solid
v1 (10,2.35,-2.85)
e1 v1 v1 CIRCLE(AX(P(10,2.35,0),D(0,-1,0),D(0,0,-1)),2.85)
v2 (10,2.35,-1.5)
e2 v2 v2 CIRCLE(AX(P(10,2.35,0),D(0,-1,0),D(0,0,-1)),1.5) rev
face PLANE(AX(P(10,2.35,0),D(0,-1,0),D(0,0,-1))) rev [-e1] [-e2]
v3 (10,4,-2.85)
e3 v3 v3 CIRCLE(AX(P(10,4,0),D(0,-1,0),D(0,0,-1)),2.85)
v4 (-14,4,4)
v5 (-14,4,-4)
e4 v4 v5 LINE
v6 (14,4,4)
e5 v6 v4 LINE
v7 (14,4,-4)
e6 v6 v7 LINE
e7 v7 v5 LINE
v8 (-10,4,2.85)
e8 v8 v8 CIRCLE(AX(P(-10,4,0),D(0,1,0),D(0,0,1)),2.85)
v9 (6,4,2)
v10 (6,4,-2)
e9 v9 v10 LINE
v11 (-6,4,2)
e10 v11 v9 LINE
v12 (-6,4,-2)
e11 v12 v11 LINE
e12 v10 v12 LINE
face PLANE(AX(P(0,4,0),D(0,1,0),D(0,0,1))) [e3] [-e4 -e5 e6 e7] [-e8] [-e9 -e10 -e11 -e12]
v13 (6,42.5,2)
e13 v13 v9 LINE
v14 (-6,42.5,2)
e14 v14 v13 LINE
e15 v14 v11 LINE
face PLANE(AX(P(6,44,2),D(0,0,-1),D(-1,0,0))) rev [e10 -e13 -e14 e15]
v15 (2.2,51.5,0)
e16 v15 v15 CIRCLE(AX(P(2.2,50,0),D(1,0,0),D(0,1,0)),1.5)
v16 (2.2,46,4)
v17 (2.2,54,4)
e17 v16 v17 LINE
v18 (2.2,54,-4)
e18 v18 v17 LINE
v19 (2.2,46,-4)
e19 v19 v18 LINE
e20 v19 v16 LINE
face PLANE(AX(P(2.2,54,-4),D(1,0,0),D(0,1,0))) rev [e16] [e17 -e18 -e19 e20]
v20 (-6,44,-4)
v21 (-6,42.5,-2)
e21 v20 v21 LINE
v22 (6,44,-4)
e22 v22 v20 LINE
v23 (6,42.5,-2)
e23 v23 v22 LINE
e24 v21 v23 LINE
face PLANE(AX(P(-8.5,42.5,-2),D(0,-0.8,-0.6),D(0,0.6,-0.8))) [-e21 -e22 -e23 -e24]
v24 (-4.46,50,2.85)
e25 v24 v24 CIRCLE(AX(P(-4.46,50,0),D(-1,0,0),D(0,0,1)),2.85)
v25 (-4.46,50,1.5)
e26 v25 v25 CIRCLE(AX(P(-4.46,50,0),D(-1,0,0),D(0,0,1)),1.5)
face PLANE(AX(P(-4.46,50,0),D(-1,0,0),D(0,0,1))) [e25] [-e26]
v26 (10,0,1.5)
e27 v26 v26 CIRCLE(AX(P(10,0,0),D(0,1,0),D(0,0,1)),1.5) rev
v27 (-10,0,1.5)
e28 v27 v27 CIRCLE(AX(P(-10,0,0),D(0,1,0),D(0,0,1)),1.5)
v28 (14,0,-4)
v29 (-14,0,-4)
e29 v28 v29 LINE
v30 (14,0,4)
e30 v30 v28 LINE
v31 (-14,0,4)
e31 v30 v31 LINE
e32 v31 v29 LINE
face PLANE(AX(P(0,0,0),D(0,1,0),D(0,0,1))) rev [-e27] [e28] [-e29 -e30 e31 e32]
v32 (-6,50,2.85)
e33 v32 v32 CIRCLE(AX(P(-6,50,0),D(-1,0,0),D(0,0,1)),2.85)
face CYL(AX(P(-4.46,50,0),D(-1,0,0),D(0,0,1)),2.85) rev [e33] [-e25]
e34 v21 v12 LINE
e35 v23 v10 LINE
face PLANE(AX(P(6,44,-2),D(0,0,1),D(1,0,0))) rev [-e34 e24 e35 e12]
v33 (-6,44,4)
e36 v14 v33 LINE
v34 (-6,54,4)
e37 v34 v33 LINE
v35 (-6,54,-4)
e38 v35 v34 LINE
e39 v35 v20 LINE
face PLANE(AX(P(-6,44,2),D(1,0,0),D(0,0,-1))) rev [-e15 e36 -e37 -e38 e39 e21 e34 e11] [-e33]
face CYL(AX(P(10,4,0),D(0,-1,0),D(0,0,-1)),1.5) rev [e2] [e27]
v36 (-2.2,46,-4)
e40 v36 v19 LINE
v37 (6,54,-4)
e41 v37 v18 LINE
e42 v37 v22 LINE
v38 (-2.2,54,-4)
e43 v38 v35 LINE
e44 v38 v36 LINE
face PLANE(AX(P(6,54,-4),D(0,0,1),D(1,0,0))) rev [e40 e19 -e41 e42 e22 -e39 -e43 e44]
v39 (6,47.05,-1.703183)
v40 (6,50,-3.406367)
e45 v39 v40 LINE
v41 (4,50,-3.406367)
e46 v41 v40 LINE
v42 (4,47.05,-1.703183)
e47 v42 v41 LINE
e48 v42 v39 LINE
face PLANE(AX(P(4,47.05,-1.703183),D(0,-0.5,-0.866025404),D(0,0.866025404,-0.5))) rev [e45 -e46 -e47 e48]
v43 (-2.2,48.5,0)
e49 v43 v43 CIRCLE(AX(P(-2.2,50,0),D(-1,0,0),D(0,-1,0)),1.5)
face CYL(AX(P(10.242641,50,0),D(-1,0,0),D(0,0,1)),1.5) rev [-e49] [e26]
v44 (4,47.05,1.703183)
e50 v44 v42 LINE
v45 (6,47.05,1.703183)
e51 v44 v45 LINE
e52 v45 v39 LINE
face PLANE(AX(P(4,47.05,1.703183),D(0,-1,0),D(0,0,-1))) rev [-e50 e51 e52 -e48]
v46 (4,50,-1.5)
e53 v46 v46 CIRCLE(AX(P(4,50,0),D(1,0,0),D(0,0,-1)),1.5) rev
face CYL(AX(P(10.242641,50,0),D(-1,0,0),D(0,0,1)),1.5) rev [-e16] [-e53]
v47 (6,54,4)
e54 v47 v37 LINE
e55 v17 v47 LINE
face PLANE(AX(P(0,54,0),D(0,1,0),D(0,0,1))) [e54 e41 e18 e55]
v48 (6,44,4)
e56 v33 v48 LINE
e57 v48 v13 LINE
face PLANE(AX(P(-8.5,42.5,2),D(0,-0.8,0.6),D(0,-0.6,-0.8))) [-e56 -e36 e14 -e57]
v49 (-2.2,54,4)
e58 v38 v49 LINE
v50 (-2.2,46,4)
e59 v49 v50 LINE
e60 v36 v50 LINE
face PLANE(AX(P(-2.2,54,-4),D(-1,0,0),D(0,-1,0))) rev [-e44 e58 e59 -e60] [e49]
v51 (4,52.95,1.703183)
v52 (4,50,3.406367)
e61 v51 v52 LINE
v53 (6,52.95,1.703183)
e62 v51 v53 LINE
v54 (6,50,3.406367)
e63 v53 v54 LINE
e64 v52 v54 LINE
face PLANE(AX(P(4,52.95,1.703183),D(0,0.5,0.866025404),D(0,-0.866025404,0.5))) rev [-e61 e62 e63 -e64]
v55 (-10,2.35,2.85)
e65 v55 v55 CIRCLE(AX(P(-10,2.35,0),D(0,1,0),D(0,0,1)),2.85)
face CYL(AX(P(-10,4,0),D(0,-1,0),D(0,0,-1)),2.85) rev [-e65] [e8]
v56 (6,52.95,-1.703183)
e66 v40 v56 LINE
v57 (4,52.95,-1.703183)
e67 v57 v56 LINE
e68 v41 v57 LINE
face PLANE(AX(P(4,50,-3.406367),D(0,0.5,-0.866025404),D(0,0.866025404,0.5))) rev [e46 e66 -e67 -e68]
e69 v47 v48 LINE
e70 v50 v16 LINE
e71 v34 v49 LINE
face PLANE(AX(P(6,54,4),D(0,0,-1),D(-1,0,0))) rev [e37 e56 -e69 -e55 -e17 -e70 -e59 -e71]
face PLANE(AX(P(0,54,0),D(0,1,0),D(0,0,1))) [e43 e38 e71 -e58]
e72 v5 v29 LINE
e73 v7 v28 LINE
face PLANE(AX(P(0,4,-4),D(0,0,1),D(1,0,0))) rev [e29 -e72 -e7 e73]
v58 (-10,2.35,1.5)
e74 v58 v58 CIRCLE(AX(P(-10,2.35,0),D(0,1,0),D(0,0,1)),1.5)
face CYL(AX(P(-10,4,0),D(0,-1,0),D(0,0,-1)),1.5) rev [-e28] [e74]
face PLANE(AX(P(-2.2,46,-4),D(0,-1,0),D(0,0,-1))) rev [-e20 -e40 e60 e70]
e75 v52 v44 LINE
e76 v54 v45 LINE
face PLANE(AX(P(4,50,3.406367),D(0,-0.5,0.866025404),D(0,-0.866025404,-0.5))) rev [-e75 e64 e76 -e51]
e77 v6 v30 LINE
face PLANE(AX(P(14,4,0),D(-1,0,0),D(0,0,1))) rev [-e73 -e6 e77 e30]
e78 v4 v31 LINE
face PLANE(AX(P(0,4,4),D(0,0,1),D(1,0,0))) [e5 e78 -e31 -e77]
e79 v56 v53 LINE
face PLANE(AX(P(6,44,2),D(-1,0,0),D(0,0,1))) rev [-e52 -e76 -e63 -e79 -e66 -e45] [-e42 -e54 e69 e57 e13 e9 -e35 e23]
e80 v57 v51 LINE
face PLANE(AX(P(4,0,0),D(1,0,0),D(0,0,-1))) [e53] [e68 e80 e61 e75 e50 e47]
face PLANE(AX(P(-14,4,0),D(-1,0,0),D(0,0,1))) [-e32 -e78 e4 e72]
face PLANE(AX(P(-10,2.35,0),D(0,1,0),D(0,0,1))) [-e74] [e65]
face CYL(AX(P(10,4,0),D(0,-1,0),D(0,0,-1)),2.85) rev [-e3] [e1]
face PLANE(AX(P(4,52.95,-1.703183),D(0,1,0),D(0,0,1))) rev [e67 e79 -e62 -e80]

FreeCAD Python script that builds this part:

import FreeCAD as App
import Part
import Sketcher

V = App.Vector
Q = App.Units.Quantity


def add_polygon(sketch, points):
    """Adds a closed chain of lines whose ends are joined by coincident constraints."""
    first, n = sketch.GeometryCount, len(points)
    for a, b in zip(points, points[1:] + points[:1]):
        sketch.addGeometry(Part.LineSegment(App.Vector(*a, 0), App.Vector(*b, 0)), False)
    for i in range(n):
        sketch.addConstraint(Sketcher.Constraint("Coincident", first + i, 2, first + (i + 1) % n, 1))

doc = App.newDocument("Part")
body = doc.addObject("PartDesign::Body", "Body")

sketch1 = body.newObject("Sketcher::SketchObject", "Sketch")
sketch1.AttachmentSupport = (doc.getObject("XZ_Plane"), [""])
sketch1.MapMode = "FlatFace"
add_polygon(sketch1, [(-14, -4), (-14, 4), (14, 4), (14, -4)])
sketch1.addGeometry(Part.Circle(V(-10, 0, 0), V(0, 0, 1), 1.5), False)
sketch1.addGeometry(Part.Circle(V(10, 0, 0), V(0, 0, 1), 1.5), False)
sketch1.addConstraint(Sketcher.Constraint("Vertical", 0))
sketch1.addConstraint(Sketcher.Constraint("Horizontal", 1))
sketch1.addConstraint(Sketcher.Constraint("Vertical", 2))
sketch1.addConstraint(Sketcher.Constraint("Horizontal", 3))
sketch1.addConstraint(Sketcher.Constraint("Equal", 4, 5))
sketch1.addConstraint(Sketcher.Constraint("Symmetric", 4, 3, 5, 3, -1, 1))
sketch1.addConstraint(Sketcher.Constraint("Symmetric", 0, 2, 2, 2, -1, 1))
sketch1.addConstraint(Sketcher.Constraint("PointOnObject", 4, 3, -1))
sketch1.addConstraint(Sketcher.Constraint("Diameter", 4, Q("3 mm")))
sketch1.addConstraint(Sketcher.Constraint("DistanceX", 1, 1, 1, 2, Q("28 mm")))
sketch1.addConstraint(Sketcher.Constraint("DistanceY", 0, 1, 0, 2, Q("8 mm")))
sketch1.addConstraint(Sketcher.Constraint("DistanceX", 4, 3, -1, 1, Q("10 mm")))
pad1 = body.newObject("PartDesign::Pad", "Pad")
pad1.Profile = sketch1
pad1.Length = 4
pad1.Reversed = True

sketch2 = body.newObject("Sketcher::SketchObject", "Sketch001")
sketch2.AttachmentSupport = (doc.getObject("XZ_Plane"), [""])
sketch2.MapMode = "FlatFace"
sketch2.AttachmentOffset = App.Placement(V(0, 0, -2.35), App.Rotation())
sketch2.addGeometry(Part.Circle(V(-10, 0, 0), V(0, 0, 1), 2.9), False)
sketch2.addGeometry(Part.Circle(V(10, 0, 0), V(0, 0, 1), 2.9), False)
sketch2.addConstraint(Sketcher.Constraint("Equal", 0, 1))
sketch2.addConstraint(Sketcher.Constraint("Symmetric", 0, 3, 1, 3, -1, 1))
sketch2.addConstraint(Sketcher.Constraint("PointOnObject", 0, 3, -1))
sketch2.addConstraint(Sketcher.Constraint("Diameter", 0, Q("5.7 mm")))
sketch2.addConstraint(Sketcher.Constraint("DistanceX", 0, 3, -1, 1, Q("10 mm")))
pocket1 = body.newObject("PartDesign::Pocket", "Pocket")
pocket1.Profile = sketch2
pocket1.Type = "ThroughAll"

sketch3 = body.newObject("Sketcher::SketchObject", "Sketch002")
sketch3.AttachmentSupport = (doc.getObject("XZ_Plane"), [""])
sketch3.MapMode = "FlatFace"
sketch3.AttachmentOffset = App.Placement(V(0, 0, -4), App.Rotation())
add_polygon(sketch3, [(-6, -2), (-6, 2), (6, 2), (6, -2)])
sketch3.addConstraint(Sketcher.Constraint("Vertical", 0))
sketch3.addConstraint(Sketcher.Constraint("Horizontal", 1))
sketch3.addConstraint(Sketcher.Constraint("Vertical", 2))
sketch3.addConstraint(Sketcher.Constraint("Horizontal", 3))
sketch3.addConstraint(Sketcher.Constraint("Symmetric", 0, 2, 2, 2, -1, 1))
sketch3.addConstraint(Sketcher.Constraint("DistanceX", 1, 1, 1, 2, Q("12 mm")))
sketch3.addConstraint(Sketcher.Constraint("DistanceY", 0, 1, 0, 2, Q("4 mm")))
pad2 = body.newObject("PartDesign::Pad", "Pad001")
pad2.Profile = sketch3
pad2.Length = 40
pad2.Reversed = True

sketch4 = body.newObject("Sketcher::SketchObject", "Sketch003")
sketch4.AttachmentSupport = (doc.getObject("XZ_Plane"), [""])
sketch4.MapMode = "FlatFace"
sketch4.AttachmentOffset = App.Placement(V(0, 0, -44), App.Rotation())
add_polygon(sketch4, [(-6, -4), (-6, 4), (6, 4), (6, -4)])
sketch4.addConstraint(Sketcher.Constraint("Vertical", 0))
sketch4.addConstraint(Sketcher.Constraint("Horizontal", 1))
sketch4.addConstraint(Sketcher.Constraint("Vertical", 2))
sketch4.addConstraint(Sketcher.Constraint("Horizontal", 3))
sketch4.addConstraint(Sketcher.Constraint("Symmetric", 0, 2, 2, 2, -1, 1))
sketch4.addConstraint(Sketcher.Constraint("DistanceX", 1, 1, 1, 2, Q("12 mm")))
sketch4.addConstraint(Sketcher.Constraint("DistanceY", 0, 1, 0, 2, Q("8 mm")))
pad3 = body.newObject("PartDesign::Pad", "Pad002")
pad3.Profile = sketch4
pad3.Length = 10
pad3.Reversed = True

sketch5 = body.newObject("Sketcher::SketchObject", "Sketch004")
sketch5.AttachmentSupport = (doc.getObject("XY_Plane"), [""])
sketch5.MapMode = "FlatFace"
sketch5.AttachmentOffset = App.Placement(V(0, 0, 4), App.Rotation())
add_polygon(sketch5, [(-2.2, 54), (-2.2, 46), (2.2, 46), (2.2, 54)])
sketch5.addConstraint(Sketcher.Constraint("Vertical", 0))
sketch5.addConstraint(Sketcher.Constraint("Horizontal", 1))
sketch5.addConstraint(Sketcher.Constraint("Vertical", 2))
sketch5.addConstraint(Sketcher.Constraint("Horizontal", 3))
sketch5.addConstraint(Sketcher.Constraint("DistanceY", 0, 2, 0, 1, Q("8 mm")))
sketch5.addConstraint(Sketcher.Constraint("DistanceX", 1, 1, 1, 2, Q("4.4 mm")))
sketch5.addConstraint(Sketcher.Constraint("DistanceY", -1, 1, 0, 2, Q("46 mm")))
sketch5.addConstraint(Sketcher.Constraint("DistanceX", 0, 2, -1, 1, Q("2.2 mm")))
pocket2 = body.newObject("PartDesign::Pocket", "Pocket001")
pocket2.Profile = sketch5
pocket2.Type = "ThroughAll"

sketch6 = body.newObject("Sketcher::SketchObject", "Sketch005")
sketch6.AttachmentSupport = (doc.getObject("YZ_Plane"), [""])
sketch6.MapMode = "FlatFace"
sketch6.AttachmentOffset = App.Placement(V(0, 0, 6), App.Rotation())
sketch6.addGeometry(Part.Circle(V(50, 0, 0), V(0, 0, 1), 1.5), False)
sketch6.addConstraint(Sketcher.Constraint("PointOnObject", 0, 3, -1))
sketch6.addConstraint(Sketcher.Constraint("Diameter", 0, Q("3 mm")))
sketch6.addConstraint(Sketcher.Constraint("DistanceX", -1, 1, 0, 3, Q("50 mm")))
pocket3 = body.newObject("PartDesign::Pocket", "Pocket002")
pocket3.Profile = sketch6
pocket3.Length = 12

sketch7 = body.newObject("Sketcher::SketchObject", "Sketch006")
sketch7.AttachmentSupport = (doc.getObject("YZ_Plane"), [""])
sketch7.MapMode = "FlatFace"
sketch7.AttachmentOffset = App.Placement(V(0, 0, -4.46), App.Rotation())
sketch7.addGeometry(Part.Circle(V(50, 0, 0), V(0, 0, 1), 2.9), False)
sketch7.addGeometry(Part.Circle(V(50, 0, 0), V(0, 0, 1), 1.5), False)
sketch7.addConstraint(Sketcher.Constraint("Coincident", 1, 3, 0, 3))
sketch7.addConstraint(Sketcher.Constraint("PointOnObject", 0, 3, -1))
sketch7.addConstraint(Sketcher.Constraint("Diameter", 1, Q("3 mm")))
sketch7.addConstraint(Sketcher.Constraint("Diameter", 0, Q("5.7 mm")))
sketch7.addConstraint(Sketcher.Constraint("DistanceX", -1, 1, 0, 3, Q("50 mm")))
pocket4 = body.newObject("PartDesign::Pocket", "Pocket003")
pocket4.Profile = sketch7
pocket4.Length = 1.54

sketch8 = body.newObject("Sketcher::SketchObject", "Sketch007")
sketch8.AttachmentSupport = (doc.getObject("YZ_Plane"), [""])
sketch8.MapMode = "FlatFace"
sketch8.AttachmentOffset = App.Placement(V(0, 0, 6), App.Rotation())
add_polygon(sketch8, [(50, 3.4), (47, 1.7), (47, -1.7), (50, -3.4), (53, -1.7), (53, 1.7)])
sketch8.addConstraint(Sketcher.Constraint("Vertical", 1))
sketch8.addConstraint(Sketcher.Constraint("Vertical", 4))
sketch8.addConstraint(Sketcher.Constraint("Symmetric", 2, 2, 5, 2, -1))
sketch8.addConstraint(Sketcher.Constraint("Parallel", 0, 3))
sketch8.addConstraint(Sketcher.Constraint("Parallel", 2, 5))
sketch8.addConstraint(Sketcher.Constraint("Horizontal", 1, 2, 3, 2))
sketch8.addConstraint(Sketcher.Constraint("Horizontal", 0, 2, 4, 2))
sketch8.addConstraint(Sketcher.Constraint("Angle", 0, Q("-150 deg")))
sketch8.addConstraint(Sketcher.Constraint("DistanceX", -1, 1, 2, 2, Q("50 mm")))
sketch8.addConstraint(Sketcher.Constraint("DistanceX", 1, 2, 3, 2, Q("5.9 mm")))
sketch8.addConstraint(Sketcher.Constraint("DistanceY", 1, 2, 1, 1, Q("3.406367 mm")))
pocket5 = body.newObject("PartDesign::Pocket", "Pocket004")
pocket5.Profile = sketch8
pocket5.Length = 2

sketch9 = body.newObject("Sketcher::SketchObject", "Sketch008")
sketch9.AttachmentSupport = (doc.getObject("YZ_Plane"), [""])
sketch9.MapMode = "FlatFace"
sketch9.AttachmentOffset = App.Placement(V(0, 0, 6), App.Rotation())
add_polygon(sketch9, [(44, 2), (44, 4), (42.5, 2)])
add_polygon(sketch9, [(42.5, -2), (44, -4), (44, -2)])
sketch9.addConstraint(Sketcher.Constraint("Vertical", 0))
sketch9.addConstraint(Sketcher.Constraint("Horizontal", 2))
sketch9.addConstraint(Sketcher.Constraint("Vertical", 4))
sketch9.addConstraint(Sketcher.Constraint("Horizontal", 5))
sketch9.addConstraint(Sketcher.Constraint("Symmetric", 0, 2, 3, 2, -1))
sketch9.addConstraint(Sketcher.Constraint("Symmetric", 1, 2, 5, 2, -1))
sketch9.addConstraint(Sketcher.Constraint("DistanceY", 0, 1, 0, 2, Q("2 mm")))
sketch9.addConstraint(Sketcher.Constraint("DistanceX", 2, 1, 2, 2, Q("1.5 mm")))
sketch9.addConstraint(Sketcher.Constraint("DistanceX", -1, 1, 0, 2, Q("44 mm")))
sketch9.addConstraint(Sketcher.Constraint("DistanceY", -1, 1, 0, 2, Q("4 mm")))
pad4 = body.newObject("PartDesign::Pad", "Pad003")
pad4.Profile = sketch9
pad4.Length = 12
pad4.Reversed = True

doc.recompute()
